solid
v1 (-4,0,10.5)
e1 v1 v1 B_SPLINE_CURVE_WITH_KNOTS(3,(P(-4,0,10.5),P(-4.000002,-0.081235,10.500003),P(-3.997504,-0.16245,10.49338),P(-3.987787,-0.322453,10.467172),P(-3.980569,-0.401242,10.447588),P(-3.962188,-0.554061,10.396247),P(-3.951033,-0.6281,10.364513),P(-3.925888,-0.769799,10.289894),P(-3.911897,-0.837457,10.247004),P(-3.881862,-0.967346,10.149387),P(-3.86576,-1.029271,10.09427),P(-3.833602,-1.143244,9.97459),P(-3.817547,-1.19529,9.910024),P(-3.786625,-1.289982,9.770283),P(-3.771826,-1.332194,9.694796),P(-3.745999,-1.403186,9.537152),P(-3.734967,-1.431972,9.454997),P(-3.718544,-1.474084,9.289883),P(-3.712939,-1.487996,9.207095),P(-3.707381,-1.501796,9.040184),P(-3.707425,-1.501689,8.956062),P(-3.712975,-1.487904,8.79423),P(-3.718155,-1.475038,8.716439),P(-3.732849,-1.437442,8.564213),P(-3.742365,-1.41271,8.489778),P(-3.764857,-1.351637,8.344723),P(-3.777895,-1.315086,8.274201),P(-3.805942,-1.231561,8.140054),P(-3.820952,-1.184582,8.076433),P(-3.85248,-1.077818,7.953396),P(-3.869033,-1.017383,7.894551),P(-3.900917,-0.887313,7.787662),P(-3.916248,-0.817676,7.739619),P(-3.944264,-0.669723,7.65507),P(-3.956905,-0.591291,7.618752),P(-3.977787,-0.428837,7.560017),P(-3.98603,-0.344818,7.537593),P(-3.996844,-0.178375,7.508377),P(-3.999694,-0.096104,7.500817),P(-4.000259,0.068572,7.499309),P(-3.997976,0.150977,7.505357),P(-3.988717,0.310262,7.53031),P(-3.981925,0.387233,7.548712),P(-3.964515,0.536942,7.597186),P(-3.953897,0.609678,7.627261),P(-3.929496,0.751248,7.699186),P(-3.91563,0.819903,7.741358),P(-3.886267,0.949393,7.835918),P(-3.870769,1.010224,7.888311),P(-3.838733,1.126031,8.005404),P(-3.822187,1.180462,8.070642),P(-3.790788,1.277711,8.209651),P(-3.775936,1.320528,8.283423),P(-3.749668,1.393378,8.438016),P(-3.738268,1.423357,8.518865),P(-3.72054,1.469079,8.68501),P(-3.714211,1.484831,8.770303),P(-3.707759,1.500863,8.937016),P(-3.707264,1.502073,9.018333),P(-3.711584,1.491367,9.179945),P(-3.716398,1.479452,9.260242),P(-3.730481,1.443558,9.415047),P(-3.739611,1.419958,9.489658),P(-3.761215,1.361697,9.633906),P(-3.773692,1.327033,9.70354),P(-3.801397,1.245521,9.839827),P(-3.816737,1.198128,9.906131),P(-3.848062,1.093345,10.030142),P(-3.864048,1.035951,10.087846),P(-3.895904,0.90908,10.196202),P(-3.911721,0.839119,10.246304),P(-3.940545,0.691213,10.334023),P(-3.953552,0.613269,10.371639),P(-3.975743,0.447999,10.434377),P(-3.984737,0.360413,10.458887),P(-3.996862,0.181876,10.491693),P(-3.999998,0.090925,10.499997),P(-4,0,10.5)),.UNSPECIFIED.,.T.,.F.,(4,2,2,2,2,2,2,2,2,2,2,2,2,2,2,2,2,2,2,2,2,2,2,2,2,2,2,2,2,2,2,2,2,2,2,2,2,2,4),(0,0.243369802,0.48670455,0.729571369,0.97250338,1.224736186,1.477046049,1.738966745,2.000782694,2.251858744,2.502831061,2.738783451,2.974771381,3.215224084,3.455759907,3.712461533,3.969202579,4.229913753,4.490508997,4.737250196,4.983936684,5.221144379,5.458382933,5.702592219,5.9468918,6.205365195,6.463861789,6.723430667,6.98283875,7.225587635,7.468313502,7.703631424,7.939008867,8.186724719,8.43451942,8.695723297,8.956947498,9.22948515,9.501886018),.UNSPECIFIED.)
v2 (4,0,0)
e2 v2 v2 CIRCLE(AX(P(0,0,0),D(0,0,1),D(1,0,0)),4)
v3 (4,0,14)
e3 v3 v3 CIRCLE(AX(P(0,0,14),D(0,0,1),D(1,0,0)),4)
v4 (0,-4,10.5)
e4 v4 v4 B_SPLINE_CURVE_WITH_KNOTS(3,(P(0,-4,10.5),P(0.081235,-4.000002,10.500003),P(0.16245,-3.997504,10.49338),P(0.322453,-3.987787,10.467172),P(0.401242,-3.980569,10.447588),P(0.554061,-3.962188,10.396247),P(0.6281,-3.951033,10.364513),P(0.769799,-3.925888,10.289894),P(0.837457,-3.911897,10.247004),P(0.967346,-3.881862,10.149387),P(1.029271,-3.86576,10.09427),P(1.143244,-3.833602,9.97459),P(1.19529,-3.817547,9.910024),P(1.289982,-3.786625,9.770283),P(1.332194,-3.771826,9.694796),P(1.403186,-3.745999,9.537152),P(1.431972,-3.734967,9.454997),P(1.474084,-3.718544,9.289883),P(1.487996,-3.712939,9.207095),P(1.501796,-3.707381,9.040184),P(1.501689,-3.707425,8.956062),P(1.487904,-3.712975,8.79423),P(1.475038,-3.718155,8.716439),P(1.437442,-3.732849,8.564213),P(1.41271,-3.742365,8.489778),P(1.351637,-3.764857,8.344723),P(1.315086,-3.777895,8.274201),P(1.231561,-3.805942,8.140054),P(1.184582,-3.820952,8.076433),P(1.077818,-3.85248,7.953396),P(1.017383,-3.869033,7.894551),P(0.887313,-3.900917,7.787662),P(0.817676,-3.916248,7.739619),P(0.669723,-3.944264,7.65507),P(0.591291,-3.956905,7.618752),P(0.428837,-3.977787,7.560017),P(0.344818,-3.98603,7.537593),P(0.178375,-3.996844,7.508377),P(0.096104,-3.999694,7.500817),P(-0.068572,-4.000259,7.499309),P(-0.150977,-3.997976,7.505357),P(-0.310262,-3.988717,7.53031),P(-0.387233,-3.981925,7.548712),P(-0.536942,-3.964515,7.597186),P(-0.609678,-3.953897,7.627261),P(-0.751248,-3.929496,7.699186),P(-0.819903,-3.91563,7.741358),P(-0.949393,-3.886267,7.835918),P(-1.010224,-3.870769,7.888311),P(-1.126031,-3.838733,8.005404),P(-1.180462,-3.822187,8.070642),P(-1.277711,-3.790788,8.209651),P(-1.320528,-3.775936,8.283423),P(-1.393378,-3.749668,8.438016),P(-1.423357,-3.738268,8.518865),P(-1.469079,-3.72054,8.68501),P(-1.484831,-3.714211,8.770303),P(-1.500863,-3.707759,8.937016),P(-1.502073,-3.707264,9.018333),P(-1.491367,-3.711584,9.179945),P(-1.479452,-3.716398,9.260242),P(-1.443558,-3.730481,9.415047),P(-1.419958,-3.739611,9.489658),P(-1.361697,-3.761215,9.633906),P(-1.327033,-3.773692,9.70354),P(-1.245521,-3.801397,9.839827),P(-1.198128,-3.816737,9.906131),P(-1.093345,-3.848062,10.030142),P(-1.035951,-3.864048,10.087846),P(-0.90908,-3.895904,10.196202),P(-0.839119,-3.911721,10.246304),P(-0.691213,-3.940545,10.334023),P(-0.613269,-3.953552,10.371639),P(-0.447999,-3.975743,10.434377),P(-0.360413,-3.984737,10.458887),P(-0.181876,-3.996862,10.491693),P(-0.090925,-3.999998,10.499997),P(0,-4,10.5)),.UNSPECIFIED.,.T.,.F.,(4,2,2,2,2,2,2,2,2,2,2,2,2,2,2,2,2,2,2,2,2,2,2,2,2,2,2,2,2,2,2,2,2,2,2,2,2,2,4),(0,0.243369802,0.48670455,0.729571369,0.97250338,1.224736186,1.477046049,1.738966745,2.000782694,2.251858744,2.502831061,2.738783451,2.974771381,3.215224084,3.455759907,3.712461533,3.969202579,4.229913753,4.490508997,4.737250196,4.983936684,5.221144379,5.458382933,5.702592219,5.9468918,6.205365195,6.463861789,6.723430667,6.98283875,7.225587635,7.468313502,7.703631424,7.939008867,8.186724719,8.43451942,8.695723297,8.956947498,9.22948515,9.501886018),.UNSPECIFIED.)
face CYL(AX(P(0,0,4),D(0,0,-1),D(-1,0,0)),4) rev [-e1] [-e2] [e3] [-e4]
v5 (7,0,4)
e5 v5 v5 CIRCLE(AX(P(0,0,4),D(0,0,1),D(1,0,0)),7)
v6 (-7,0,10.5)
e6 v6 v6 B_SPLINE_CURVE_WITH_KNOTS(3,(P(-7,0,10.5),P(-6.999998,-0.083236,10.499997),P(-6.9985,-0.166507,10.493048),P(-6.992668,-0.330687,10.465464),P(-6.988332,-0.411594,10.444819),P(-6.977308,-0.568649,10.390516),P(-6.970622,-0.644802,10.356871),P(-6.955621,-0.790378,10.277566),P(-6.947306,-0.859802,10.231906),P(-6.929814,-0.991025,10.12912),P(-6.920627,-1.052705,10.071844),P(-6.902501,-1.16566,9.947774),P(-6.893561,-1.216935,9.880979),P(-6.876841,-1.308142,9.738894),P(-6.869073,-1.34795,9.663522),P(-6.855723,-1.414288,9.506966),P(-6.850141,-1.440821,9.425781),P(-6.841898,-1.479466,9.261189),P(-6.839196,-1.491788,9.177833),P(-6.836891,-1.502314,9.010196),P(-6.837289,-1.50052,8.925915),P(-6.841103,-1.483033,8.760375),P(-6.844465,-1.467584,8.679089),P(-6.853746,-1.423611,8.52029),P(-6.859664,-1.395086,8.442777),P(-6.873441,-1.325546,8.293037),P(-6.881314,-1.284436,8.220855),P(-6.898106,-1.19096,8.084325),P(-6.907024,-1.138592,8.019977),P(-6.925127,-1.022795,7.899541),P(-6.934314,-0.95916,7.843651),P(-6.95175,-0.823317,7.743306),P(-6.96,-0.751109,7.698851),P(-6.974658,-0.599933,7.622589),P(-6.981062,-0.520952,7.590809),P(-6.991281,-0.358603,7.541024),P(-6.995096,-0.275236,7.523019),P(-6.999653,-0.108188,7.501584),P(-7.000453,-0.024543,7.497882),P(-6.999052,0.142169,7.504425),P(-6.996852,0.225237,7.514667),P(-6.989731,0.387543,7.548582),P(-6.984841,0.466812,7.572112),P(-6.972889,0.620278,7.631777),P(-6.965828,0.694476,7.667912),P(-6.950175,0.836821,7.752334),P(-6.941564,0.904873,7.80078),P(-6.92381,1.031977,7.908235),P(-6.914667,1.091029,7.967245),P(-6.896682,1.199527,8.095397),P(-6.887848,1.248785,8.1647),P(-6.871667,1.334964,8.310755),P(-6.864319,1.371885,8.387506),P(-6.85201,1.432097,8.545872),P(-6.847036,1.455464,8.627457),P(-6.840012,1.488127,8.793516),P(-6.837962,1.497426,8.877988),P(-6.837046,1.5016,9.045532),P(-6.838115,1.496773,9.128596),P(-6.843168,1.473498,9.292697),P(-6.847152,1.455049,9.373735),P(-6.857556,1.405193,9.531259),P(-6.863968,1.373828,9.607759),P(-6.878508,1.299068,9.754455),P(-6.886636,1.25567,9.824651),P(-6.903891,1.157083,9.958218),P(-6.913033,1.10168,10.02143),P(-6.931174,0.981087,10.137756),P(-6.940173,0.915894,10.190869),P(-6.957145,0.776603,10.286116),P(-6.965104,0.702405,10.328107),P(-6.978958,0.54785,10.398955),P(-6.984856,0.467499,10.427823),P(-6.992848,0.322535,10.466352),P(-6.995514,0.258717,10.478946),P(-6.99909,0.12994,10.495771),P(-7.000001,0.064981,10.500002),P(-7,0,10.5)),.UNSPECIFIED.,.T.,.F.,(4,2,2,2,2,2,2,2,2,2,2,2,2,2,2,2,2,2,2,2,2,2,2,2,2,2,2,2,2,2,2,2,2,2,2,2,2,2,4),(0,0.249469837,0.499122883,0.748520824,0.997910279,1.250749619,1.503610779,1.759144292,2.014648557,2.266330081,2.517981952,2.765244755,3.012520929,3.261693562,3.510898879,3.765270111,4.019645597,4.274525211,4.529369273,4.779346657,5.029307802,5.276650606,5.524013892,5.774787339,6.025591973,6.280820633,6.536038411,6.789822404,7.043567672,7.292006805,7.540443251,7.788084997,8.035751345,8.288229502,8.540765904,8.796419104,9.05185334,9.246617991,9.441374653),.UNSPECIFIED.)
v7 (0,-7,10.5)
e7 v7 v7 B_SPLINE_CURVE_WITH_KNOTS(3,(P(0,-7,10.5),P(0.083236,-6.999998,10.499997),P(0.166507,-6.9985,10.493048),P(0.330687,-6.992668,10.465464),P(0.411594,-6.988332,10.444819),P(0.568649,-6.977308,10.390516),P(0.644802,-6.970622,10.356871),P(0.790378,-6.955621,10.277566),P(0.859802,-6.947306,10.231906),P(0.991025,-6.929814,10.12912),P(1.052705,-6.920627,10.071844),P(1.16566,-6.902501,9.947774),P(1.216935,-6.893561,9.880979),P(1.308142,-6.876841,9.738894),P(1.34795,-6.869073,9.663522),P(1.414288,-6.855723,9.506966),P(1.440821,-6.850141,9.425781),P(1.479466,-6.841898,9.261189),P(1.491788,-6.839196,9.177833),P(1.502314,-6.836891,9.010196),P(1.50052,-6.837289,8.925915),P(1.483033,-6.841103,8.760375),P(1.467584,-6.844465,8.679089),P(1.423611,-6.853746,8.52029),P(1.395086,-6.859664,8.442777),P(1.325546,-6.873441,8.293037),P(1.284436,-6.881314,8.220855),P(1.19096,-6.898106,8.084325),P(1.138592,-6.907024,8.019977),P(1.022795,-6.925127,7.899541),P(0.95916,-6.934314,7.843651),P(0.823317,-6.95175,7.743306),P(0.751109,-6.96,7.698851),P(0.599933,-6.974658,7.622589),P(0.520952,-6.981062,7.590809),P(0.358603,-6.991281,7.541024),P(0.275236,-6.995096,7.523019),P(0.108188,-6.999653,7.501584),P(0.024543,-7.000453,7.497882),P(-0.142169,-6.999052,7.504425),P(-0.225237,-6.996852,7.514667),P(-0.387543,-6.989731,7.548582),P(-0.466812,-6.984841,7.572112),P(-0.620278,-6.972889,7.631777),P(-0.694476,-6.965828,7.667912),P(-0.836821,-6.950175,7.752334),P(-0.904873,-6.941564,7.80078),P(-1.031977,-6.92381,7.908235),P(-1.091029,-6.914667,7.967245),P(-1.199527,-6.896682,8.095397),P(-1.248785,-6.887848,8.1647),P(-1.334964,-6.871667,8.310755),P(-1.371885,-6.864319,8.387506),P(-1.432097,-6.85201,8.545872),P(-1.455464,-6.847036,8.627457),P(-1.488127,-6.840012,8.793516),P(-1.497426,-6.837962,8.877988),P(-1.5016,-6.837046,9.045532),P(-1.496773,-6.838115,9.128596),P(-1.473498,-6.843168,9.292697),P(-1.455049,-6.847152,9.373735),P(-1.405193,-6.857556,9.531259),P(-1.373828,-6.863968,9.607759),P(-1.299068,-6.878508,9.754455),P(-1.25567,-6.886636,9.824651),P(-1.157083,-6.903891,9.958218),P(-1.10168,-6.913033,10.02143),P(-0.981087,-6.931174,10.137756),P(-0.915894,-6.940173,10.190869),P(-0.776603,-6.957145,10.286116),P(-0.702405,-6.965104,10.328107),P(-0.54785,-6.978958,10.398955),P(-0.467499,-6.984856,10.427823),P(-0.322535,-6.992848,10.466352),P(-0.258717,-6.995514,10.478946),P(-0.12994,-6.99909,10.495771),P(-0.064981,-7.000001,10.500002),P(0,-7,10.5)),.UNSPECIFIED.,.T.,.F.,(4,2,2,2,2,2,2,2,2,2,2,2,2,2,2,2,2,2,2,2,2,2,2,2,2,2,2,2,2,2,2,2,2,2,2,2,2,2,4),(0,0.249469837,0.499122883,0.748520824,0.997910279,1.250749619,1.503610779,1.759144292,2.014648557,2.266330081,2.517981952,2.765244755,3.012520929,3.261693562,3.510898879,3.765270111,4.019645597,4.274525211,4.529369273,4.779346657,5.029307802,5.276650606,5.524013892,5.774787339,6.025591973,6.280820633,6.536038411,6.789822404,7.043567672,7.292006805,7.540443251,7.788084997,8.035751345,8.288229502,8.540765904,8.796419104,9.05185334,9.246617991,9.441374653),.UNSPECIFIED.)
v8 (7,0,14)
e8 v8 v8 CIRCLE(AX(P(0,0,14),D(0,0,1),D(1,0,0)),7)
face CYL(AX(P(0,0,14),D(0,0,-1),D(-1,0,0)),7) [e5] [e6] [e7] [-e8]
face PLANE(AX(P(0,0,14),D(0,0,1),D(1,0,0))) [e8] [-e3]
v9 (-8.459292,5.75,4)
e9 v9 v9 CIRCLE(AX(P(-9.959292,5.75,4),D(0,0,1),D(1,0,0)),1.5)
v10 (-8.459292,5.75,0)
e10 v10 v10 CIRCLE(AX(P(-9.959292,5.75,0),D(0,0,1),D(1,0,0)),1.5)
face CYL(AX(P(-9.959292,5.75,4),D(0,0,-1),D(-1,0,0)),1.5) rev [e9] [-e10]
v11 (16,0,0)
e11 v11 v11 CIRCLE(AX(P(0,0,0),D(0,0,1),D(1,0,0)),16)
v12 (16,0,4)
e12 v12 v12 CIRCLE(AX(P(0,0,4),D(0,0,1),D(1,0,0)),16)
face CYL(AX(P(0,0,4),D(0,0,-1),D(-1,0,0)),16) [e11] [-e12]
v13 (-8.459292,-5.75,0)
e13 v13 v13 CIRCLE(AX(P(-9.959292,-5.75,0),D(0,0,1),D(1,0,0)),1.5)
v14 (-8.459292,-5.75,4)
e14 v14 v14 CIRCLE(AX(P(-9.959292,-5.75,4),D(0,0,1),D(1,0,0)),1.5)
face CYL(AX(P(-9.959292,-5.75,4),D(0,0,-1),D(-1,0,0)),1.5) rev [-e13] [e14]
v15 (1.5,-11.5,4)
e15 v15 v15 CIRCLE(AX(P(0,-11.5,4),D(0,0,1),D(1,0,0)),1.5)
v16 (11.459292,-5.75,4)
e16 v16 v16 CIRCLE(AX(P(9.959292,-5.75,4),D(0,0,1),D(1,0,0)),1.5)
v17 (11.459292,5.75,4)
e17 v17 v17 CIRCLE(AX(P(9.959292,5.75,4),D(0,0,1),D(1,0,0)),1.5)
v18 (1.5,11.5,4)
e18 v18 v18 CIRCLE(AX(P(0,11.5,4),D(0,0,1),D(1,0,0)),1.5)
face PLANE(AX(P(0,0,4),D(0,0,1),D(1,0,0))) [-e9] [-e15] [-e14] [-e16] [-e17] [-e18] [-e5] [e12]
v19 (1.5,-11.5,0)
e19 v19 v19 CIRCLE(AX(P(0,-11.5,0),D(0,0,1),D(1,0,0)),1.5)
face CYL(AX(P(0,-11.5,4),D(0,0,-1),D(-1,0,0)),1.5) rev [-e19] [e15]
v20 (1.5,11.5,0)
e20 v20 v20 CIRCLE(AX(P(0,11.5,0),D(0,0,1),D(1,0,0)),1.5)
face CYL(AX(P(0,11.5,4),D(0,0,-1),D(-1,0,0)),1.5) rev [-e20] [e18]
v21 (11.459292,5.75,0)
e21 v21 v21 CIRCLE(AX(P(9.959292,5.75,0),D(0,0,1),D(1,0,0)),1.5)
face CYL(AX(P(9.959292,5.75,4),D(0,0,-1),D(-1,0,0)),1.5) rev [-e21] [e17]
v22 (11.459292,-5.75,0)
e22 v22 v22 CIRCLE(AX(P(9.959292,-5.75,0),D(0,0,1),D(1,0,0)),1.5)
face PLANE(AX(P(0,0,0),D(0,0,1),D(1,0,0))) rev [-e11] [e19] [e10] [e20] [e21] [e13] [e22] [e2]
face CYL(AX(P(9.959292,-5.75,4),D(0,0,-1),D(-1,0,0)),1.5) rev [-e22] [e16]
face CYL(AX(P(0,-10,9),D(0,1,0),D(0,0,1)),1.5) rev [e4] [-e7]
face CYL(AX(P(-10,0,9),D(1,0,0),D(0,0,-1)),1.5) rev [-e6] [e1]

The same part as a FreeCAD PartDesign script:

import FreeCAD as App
import Part
import Sketcher
Q = App.Units.Quantity

doc = App.newDocument("Part")
body = doc.addObject("PartDesign::Body", "Body")

sketch1 = body.newObject("Sketcher::SketchObject", "Sketch")
sketch1.AttachmentSupport = (doc.getObject("XY_Plane"), [""])
sketch1.MapMode = "FlatFace"
sketch1.addGeometry([
    Part.Circle(App.Vector(0, 0, 0), App.Vector(0, 0, 1), 16),
    Part.Circle(App.Vector(-9.959292, -5.75, 0), App.Vector(0, 0, 1), 1.5),
    Part.Circle(App.Vector(0, -11.5, 0), App.Vector(0, 0, 1), 1.5),
    Part.Circle(App.Vector(9.959292, -5.75, 0), App.Vector(0, 0, 1), 1.5),
    Part.Circle(App.Vector(-9.959292, 5.75, 0), App.Vector(0, 0, 1), 1.5),
    Part.Circle(App.Vector(0, 0, 0), App.Vector(0, 0, 1), 4),
    Part.Circle(App.Vector(9.959292, 5.75, 0), App.Vector(0, 0, 1), 1.5),
    Part.Circle(App.Vector(0, 11.5, 0), App.Vector(0, 0, 1), 1.5),
], False)
sketch1.addConstraint([
    Sketcher.Constraint("Coincident", 0, 3, -1, 1),
    Sketcher.Constraint("Coincident", 5, 3, -1, 1),
    Sketcher.Constraint("Equal", 1, 2),
    Sketcher.Constraint("Equal", 2, 3),
    Sketcher.Constraint("Equal", 3, 4),
    Sketcher.Constraint("Equal", 4, 6),
    Sketcher.Constraint("Equal", 6, 7),
    Sketcher.Constraint("Symmetric", 3, 3, 4, 3, -1, 1),
    Sketcher.Constraint("Symmetric", 1, 3, 6, 3, -1, 1),
    Sketcher.Constraint("Symmetric", 2, 3, 7, 3, -1, 1),
    Sketcher.Constraint("Symmetric", 1, 3, 3, 3, -2),
    Sketcher.Constraint("PointOnObject", 2, 3, -2),
    Sketcher.Constraint("Diameter", 0, Q("32 mm")),
    Sketcher.Constraint("Diameter", 1, Q("3 mm")),
    Sketcher.Constraint("Diameter", 5, Q("8 mm")),
    Sketcher.Constraint("DistanceY", 2, 3, -1, 1, Q("11.5 mm")),
    Sketcher.Constraint("DistanceY", 1, 3, 4, 3, Q("11.5 mm")),
    Sketcher.Constraint("DistanceX", 1, 3, -1, 1, Q("9.959292 mm")),
])
pad1 = body.newObject("PartDesign::Pad", "Pad")
pad1.Profile = sketch1
pad1.Length = 4

sketch2 = body.newObject("Sketcher::SketchObject", "Sketch001")
sketch2.AttachmentSupport = (doc.getObject("XY_Plane"), [""])
sketch2.MapMode = "FlatFace"
sketch2.AttachmentOffset = App.Placement(App.Vector(0, 0, 4), App.Rotation())
sketch2.addGeometry([
    Part.Circle(App.Vector(0, 0, 0), App.Vector(0, 0, 1), 7),
    Part.Circle(App.Vector(0, 0, 0), App.Vector(0, 0, 1), 4),
], False)
sketch2.addConstraint([
    Sketcher.Constraint("Coincident", 0, 3, -1, 1),
    Sketcher.Constraint("Coincident", 1, 3, -1, 1),
    Sketcher.Constraint("Diameter", 0, Q("14 mm")),
    Sketcher.Constraint("Diameter", 1, Q("8 mm")),
])
pad2 = body.newObject("PartDesign::Pad", "Pad001")
pad2.Profile = sketch2
pad2.Length = 10

sketch3 = body.newObject("Sketcher::SketchObject", "Sketch002")
sketch3.AttachmentSupport = (doc.getObject("XZ_Plane"), [""])
sketch3.MapMode = "FlatFace"
sketch3.addGeometry(Part.Circle(App.Vector(0, 9, 0), App.Vector(0, 0, 1), 1.5), False)
sketch3.addConstraint([
    Sketcher.Constraint("PointOnObject", 0, 3, -2),
    Sketcher.Constraint("Diameter", 0, Q("3 mm")),
    Sketcher.Constraint("DistanceY", -1, 1, 0, 3, Q("9 mm")),
])
pocket1 = body.newObject("PartDesign::Pocket", "Pocket")
pocket1.Profile = sketch3
pocket1.Length = 10
pocket1.Reversed = True

sketch4 = body.newObject("Sketcher::SketchObject", "Sketch003")
sketch4.AttachmentSupport = (doc.getObject("YZ_Plane"), [""])
sketch4.MapMode = "FlatFace"
sketch4.addGeometry(Part.Circle(App.Vector(0, 9, 0), App.Vector(0, 0, 1), 1.5), False)
sketch4.addConstraint([
    Sketcher.Constraint("PointOnObject", 0, 3, -2),
    Sketcher.Constraint("Diameter", 0, Q("3 mm")),
    Sketcher.Constraint("DistanceY", -1, 1, 0, 3, Q("9 mm")),
])
pocket2 = body.newObject("PartDesign::Pocket", "Pocket001")
pocket2.Profile = sketch4
pocket2.Length = 10

doc.recompute()
